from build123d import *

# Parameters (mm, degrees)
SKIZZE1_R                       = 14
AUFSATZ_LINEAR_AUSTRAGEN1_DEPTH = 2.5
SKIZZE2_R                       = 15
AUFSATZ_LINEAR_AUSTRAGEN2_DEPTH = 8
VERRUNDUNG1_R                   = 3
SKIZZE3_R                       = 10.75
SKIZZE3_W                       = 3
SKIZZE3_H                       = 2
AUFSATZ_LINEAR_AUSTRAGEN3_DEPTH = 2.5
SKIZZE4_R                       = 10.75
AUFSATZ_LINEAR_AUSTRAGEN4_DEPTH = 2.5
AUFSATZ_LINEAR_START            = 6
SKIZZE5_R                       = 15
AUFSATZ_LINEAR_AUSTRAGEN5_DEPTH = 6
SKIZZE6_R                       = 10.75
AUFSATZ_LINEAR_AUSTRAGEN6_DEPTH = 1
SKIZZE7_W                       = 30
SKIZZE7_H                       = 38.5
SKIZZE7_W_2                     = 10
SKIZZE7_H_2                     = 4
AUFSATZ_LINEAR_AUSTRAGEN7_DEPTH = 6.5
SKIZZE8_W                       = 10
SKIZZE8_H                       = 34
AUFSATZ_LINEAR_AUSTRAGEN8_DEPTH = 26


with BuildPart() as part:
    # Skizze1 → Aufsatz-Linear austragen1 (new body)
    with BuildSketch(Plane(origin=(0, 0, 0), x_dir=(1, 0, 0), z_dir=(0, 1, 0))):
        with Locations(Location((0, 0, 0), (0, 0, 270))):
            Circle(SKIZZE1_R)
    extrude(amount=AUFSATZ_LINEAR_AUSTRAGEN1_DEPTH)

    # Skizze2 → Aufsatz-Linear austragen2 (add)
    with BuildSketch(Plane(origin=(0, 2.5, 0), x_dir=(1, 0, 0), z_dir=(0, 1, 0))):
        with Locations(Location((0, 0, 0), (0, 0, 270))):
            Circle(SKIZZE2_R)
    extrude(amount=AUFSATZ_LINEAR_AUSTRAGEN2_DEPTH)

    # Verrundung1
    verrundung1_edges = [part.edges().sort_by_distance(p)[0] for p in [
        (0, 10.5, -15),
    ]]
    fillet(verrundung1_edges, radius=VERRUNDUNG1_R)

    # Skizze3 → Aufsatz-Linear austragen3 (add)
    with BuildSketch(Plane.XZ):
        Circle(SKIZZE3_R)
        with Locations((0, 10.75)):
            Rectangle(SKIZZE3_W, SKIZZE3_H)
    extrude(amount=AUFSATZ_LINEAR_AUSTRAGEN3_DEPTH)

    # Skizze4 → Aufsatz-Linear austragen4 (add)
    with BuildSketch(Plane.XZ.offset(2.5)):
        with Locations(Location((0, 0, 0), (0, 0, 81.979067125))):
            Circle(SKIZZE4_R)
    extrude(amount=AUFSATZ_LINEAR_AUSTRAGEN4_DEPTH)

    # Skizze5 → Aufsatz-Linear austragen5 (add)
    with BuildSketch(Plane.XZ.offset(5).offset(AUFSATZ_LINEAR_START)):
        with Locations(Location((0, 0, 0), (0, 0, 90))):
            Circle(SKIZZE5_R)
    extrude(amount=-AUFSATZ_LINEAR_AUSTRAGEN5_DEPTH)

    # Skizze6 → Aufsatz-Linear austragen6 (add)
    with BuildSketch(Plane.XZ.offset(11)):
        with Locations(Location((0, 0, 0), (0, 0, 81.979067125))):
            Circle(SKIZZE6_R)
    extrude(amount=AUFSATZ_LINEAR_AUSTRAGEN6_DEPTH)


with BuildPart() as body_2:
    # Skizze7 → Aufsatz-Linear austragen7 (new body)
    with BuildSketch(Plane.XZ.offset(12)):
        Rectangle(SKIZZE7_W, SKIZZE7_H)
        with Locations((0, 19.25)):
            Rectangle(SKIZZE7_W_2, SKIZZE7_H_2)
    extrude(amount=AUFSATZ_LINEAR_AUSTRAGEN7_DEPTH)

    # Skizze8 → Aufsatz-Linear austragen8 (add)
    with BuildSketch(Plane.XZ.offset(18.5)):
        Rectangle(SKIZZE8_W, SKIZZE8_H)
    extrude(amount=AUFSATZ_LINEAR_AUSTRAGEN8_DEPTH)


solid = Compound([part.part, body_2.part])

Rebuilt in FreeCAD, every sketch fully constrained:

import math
import FreeCAD as App
import Part
import Sketcher

V = App.Vector


def edges_at(feature, points):
    """Names of the edges that pass closest to the given points."""
    edges = feature.Shape.Edges
    near = lambda p: min(range(len(edges)), key=lambda i: edges[i].distToShape(Part.Vertex(*p))[0])
    return sorted({f"Edge{near(p) + 1}" for p in points})


def add_polygon(sketch, points):
    """Adds a closed chain of lines whose ends are joined by coincident constraints."""
    first, n = sketch.GeometryCount, len(points)
    for a, b in zip(points, points[1:] + points[:1]):
        sketch.addGeometry(Part.LineSegment(App.Vector(*a, 0), App.Vector(*b, 0)), False)
    for i in range(n):
        sketch.addConstraint(Sketcher.Constraint("Coincident", first + i, 2, first + (i + 1) % n, 1))

doc = App.newDocument("Part")
params = doc.addObject("Spreadsheet::Sheet", "Params")
for row, (alias, value) in enumerate([
    ("sketch1_diameter", "28 mm"),
    ("pad1_length", "2.5 mm"),
    ("sketch2_diameter", "30 mm"),
    ("pad2_length", "8 mm"),
    ("fillet_radius", "3 mm"),
    ("sketch3_width", "3 mm"),
    ("sketch3_radius", "10.75 mm"),
    ("pad3_length", "2.5 mm"),
    ("sketch4_diameter", "21.5 mm"),
    ("pad4_length", "2.5 mm"),
    ("sketch5_diameter", "30 mm"),
    ("pad5_length", "6 mm"),
    ("sketch6_diameter", "21.5 mm"),
    ("pad6_length", "1 mm"),
    ("sketch7_width", "30 mm"),
    ("sketch7_height", "2 mm"),
    ("sketch7_height2", "38.5 mm"),
    ("pad7_length", "6.5 mm"),
    ("sketch8_width", "10 mm"),
    ("sketch8_height", "34 mm"),
    ("pad8_length", "26 mm"),
], start=1):
    params.set(f"A{row}", alias)
    params.set(f"B{row}", "=" + value)
    params.setAlias(f"B{row}", alias)

body = doc.addObject("PartDesign::Body", "Body")

# Sketch on XZ plane
sketch1 = body.newObject("Sketcher::SketchObject", "Sketch")
sketch1.AttachmentSupport = (doc.getObject("XZ_Plane"), [""])
sketch1.MapMode = "FlatFace"
sketch1.addGeometry(Part.Circle(V(0, 0, 0), V(0, 0, 1), 14), False)
sketch1.addConstraint([
    Sketcher.Constraint("Coincident", 0, 3, -1, 1),
    Sketcher.Constraint("Diameter", 0, 28.0),
])
sketch1.setExpression("Constraints[1]", "Params.sketch1_diameter")
pad1 = body.newObject("PartDesign::Pad", "Pad")
pad1.Profile = sketch1
pad1.setExpression("Length", "Params.pad1_length")
pad1.Reversed = True

# Sketch on XZ plane
sketch2 = body.newObject("Sketcher::SketchObject", "Sketch001")
sketch2.AttachmentSupport = (doc.getObject("XZ_Plane"), [""])
sketch2.MapMode = "FlatFace"
sketch2.AttachmentOffset = App.Placement(V(0, 0, -2.5), App.Rotation())
sketch2.addGeometry(Part.Circle(V(0, 0, 0), V(0, 0, 1), 15), False)
sketch2.addConstraint([
    Sketcher.Constraint("Coincident", 0, 3, -1, 1),
    Sketcher.Constraint("Diameter", 0, 30.0),
])
sketch2.setExpression("Constraints[1]", "Params.sketch2_diameter")
pad2 = body.newObject("PartDesign::Pad", "Pad001")
pad2.Profile = sketch2
pad2.setExpression("Length", "Params.pad2_length")
pad2.Reversed = True
doc.recompute()

fillet = body.newObject("PartDesign::Fillet", "Fillet")
fillet.Base = (pad2, edges_at(pad2, [(0, 10.5, -15)]))
fillet.setExpression("Radius", "Params.fillet_radius")

# Sketch on XZ plane
sketch3 = body.newObject("Sketcher::SketchObject", "Sketch002")
sketch3.AttachmentSupport = (doc.getObject("XZ_Plane"), [""])
sketch3.MapMode = "FlatFace"
sketch3.addGeometry([
    Part.ArcOfCircle(Part.Circle(V(0, 0, 0), V(0, 0, 1), 10.75), math.radians(98.020933), math.radians(441.979067)),
    Part.LineSegment(V(1.5, 10.644834, 0), V(1.5, 11.75, 0)),
    Part.LineSegment(V(1.5, 11.75, 0), V(-1.5, 11.75, 0)),
    Part.LineSegment(V(-1.5, 11.75, 0), V(-1.5, 10.644834, 0)),
], False)
sketch3.addConstraint([
    Sketcher.Constraint("Coincident", 0, 2, 1, 1),
    Sketcher.Constraint("Coincident", 1, 2, 2, 1),
    Sketcher.Constraint("Coincident", 2, 2, 3, 1),
    Sketcher.Constraint("Coincident", 3, 2, 0, 1),
    Sketcher.Constraint("Vertical", 1),
    Sketcher.Constraint("Horizontal", 2),
    Sketcher.Constraint("Vertical", 3),
    Sketcher.Constraint("Coincident", 0, 3, -1, 1),
    Sketcher.Constraint("Horizontal", 0, 2, 3, 2),
    Sketcher.Constraint("DistanceX", 2, 2, 2, 1, 3.0),
    Sketcher.Constraint("Radius", 0, 10.75),
    Sketcher.Constraint("DistanceY", -1, 1, 1, 2, 11.75),
])
sketch3.setExpression("Constraints[9]", "Params.sketch3_width")
sketch3.setExpression("Constraints[10]", "Params.sketch3_radius")
pad3 = body.newObject("PartDesign::Pad", "Pad002")
pad3.Profile = sketch3
pad3.setExpression("Length", "Params.pad3_length")

# Sketch on XZ plane
sketch4 = body.newObject("Sketcher::SketchObject", "Sketch003")
sketch4.AttachmentSupport = (doc.getObject("XZ_Plane"), [""])
sketch4.MapMode = "FlatFace"
sketch4.AttachmentOffset = App.Placement(V(0, 0, 2.5), App.Rotation())
sketch4.addGeometry(Part.Circle(V(0, 0, 0), V(0, 0, 1), 10.75), False)
sketch4.addConstraint([
    Sketcher.Constraint("Coincident", 0, 3, -1, 1),
    Sketcher.Constraint("Diameter", 0, 21.5),
])
sketch4.setExpression("Constraints[1]", "Params.sketch4_diameter")
pad4 = body.newObject("PartDesign::Pad", "Pad003")
pad4.Profile = sketch4
pad4.setExpression("Length", "Params.pad4_length")

# Sketch on XZ plane
sketch5 = body.newObject("Sketcher::SketchObject", "Sketch004")
sketch5.AttachmentSupport = (doc.getObject("XZ_Plane"), [""])
sketch5.MapMode = "FlatFace"
sketch5.AttachmentOffset = App.Placement(V(0, 0, 11), App.Rotation())
sketch5.addGeometry(Part.Circle(V(0, 0, 0), V(0, 0, 1), 15), False)
sketch5.addConstraint([
    Sketcher.Constraint("Coincident", 0, 3, -1, 1),
    Sketcher.Constraint("Diameter", 0, 30.0),
])
sketch5.setExpression("Constraints[1]", "Params.sketch5_diameter")
pad5 = body.newObject("PartDesign::Pad", "Pad004")
pad5.Profile = sketch5
pad5.setExpression("Length", "Params.pad5_length")
pad5.Reversed = True

# Sketch on XZ plane
sketch6 = body.newObject("Sketcher::SketchObject", "Sketch005")
sketch6.AttachmentSupport = (doc.getObject("XZ_Plane"), [""])
sketch6.MapMode = "FlatFace"
sketch6.AttachmentOffset = App.Placement(V(0, 0, 11), App.Rotation())
sketch6.addGeometry(Part.Circle(V(0, 0, 0), V(0, 0, 1), 10.75), False)
sketch6.addConstraint([
    Sketcher.Constraint("Coincident", 0, 3, -1, 1),
    Sketcher.Constraint("Diameter", 0, 21.5),
])
sketch6.setExpression("Constraints[1]", "Params.sketch6_diameter")
pad6 = body.newObject("PartDesign::Pad", "Pad005")
pad6.Profile = sketch6
pad6.setExpression("Length", "Params.pad6_length")
body2 = doc.addObject("PartDesign::Body", "Body001")

# Sketch on XZ plane
sketch7 = body2.newObject("Sketcher::SketchObject", "Sketch006")
sketch7.AttachmentSupport = (doc.getObject("XZ_Plane001"), [""])
sketch7.MapMode = "FlatFace"
sketch7.AttachmentOffset = App.Placement(V(0, 0, 12), App.Rotation())
add_polygon(sketch7, [(-15, 19.25), (-15, -19.25), (15, -19.25), (15, 19.25), (5, 19.25), (5, 21.25), (-5, 21.25), (-5, 19.25)])  # lines 0-7
sketch7.addConstraint([
    Sketcher.Constraint("Vertical", 0),
    Sketcher.Constraint("Horizontal", 1),
    Sketcher.Constraint("Vertical", 2),
    Sketcher.Constraint("Horizontal", 3),
    Sketcher.Constraint("Vertical", 4),
    Sketcher.Constraint("Horizontal", 5),
    Sketcher.Constraint("Vertical", 6),
    Sketcher.Constraint("Horizontal", 7),
    Sketcher.Constraint("Symmetric", 0, 2, 2, 2, -1, 1),
    Sketcher.Constraint("Symmetric", 3, 2, 6, 2, -2),
    Sketcher.Constraint("Equal", 3, 5),
    Sketcher.Constraint("DistanceX", 1, 1, 1, 2, 30.0),
    Sketcher.Constraint("DistanceY", 4, 1, 4, 2, 2.0),
    Sketcher.Constraint("DistanceY", 0, 2, 0, 1, 38.5),
])
sketch7.setExpression("Constraints[19]", "Params.sketch7_width")
sketch7.setExpression("Constraints[20]", "Params.sketch7_height")
sketch7.setExpression("Constraints[21]", "Params.sketch7_height2")
pad7 = body2.newObject("PartDesign::Pad", "Pad006")
pad7.Profile = sketch7
pad7.setExpression("Length", "Params.pad7_length")

# Sketch on XZ plane
sketch8 = body2.newObject("Sketcher::SketchObject", "Sketch007")
sketch8.AttachmentSupport = (doc.getObject("XZ_Plane001"), [""])
sketch8.MapMode = "FlatFace"
sketch8.AttachmentOffset = App.Placement(V(0, 0, 18.5), App.Rotation())
add_polygon(sketch8, [(-5, 17), (-5, -17), (5, -17), (5, 17)])  # lines 0-3
sketch8.addConstraint([
    Sketcher.Constraint("Vertical", 0),
    Sketcher.Constraint("Horizontal", 1),
    Sketcher.Constraint("Vertical", 2),
    Sketcher.Constraint("Horizontal", 3),
    Sketcher.Constraint("Symmetric", 0, 2, 2, 2, -1, 1),
    Sketcher.Constraint("DistanceX", 1, 1, 1, 2, 10.0),
    Sketcher.Constraint("DistanceY", 0, 2, 0, 1, 34.0),
])
sketch8.setExpression("Constraints[9]", "Params.sketch8_width")
sketch8.setExpression("Constraints[10]", "Params.sketch8_height")
pad8 = body2.newObject("PartDesign::Pad", "Pad007")
pad8.Profile = sketch8
pad8.setExpression("Length", "Params.pad8_length")

doc.recompute()
